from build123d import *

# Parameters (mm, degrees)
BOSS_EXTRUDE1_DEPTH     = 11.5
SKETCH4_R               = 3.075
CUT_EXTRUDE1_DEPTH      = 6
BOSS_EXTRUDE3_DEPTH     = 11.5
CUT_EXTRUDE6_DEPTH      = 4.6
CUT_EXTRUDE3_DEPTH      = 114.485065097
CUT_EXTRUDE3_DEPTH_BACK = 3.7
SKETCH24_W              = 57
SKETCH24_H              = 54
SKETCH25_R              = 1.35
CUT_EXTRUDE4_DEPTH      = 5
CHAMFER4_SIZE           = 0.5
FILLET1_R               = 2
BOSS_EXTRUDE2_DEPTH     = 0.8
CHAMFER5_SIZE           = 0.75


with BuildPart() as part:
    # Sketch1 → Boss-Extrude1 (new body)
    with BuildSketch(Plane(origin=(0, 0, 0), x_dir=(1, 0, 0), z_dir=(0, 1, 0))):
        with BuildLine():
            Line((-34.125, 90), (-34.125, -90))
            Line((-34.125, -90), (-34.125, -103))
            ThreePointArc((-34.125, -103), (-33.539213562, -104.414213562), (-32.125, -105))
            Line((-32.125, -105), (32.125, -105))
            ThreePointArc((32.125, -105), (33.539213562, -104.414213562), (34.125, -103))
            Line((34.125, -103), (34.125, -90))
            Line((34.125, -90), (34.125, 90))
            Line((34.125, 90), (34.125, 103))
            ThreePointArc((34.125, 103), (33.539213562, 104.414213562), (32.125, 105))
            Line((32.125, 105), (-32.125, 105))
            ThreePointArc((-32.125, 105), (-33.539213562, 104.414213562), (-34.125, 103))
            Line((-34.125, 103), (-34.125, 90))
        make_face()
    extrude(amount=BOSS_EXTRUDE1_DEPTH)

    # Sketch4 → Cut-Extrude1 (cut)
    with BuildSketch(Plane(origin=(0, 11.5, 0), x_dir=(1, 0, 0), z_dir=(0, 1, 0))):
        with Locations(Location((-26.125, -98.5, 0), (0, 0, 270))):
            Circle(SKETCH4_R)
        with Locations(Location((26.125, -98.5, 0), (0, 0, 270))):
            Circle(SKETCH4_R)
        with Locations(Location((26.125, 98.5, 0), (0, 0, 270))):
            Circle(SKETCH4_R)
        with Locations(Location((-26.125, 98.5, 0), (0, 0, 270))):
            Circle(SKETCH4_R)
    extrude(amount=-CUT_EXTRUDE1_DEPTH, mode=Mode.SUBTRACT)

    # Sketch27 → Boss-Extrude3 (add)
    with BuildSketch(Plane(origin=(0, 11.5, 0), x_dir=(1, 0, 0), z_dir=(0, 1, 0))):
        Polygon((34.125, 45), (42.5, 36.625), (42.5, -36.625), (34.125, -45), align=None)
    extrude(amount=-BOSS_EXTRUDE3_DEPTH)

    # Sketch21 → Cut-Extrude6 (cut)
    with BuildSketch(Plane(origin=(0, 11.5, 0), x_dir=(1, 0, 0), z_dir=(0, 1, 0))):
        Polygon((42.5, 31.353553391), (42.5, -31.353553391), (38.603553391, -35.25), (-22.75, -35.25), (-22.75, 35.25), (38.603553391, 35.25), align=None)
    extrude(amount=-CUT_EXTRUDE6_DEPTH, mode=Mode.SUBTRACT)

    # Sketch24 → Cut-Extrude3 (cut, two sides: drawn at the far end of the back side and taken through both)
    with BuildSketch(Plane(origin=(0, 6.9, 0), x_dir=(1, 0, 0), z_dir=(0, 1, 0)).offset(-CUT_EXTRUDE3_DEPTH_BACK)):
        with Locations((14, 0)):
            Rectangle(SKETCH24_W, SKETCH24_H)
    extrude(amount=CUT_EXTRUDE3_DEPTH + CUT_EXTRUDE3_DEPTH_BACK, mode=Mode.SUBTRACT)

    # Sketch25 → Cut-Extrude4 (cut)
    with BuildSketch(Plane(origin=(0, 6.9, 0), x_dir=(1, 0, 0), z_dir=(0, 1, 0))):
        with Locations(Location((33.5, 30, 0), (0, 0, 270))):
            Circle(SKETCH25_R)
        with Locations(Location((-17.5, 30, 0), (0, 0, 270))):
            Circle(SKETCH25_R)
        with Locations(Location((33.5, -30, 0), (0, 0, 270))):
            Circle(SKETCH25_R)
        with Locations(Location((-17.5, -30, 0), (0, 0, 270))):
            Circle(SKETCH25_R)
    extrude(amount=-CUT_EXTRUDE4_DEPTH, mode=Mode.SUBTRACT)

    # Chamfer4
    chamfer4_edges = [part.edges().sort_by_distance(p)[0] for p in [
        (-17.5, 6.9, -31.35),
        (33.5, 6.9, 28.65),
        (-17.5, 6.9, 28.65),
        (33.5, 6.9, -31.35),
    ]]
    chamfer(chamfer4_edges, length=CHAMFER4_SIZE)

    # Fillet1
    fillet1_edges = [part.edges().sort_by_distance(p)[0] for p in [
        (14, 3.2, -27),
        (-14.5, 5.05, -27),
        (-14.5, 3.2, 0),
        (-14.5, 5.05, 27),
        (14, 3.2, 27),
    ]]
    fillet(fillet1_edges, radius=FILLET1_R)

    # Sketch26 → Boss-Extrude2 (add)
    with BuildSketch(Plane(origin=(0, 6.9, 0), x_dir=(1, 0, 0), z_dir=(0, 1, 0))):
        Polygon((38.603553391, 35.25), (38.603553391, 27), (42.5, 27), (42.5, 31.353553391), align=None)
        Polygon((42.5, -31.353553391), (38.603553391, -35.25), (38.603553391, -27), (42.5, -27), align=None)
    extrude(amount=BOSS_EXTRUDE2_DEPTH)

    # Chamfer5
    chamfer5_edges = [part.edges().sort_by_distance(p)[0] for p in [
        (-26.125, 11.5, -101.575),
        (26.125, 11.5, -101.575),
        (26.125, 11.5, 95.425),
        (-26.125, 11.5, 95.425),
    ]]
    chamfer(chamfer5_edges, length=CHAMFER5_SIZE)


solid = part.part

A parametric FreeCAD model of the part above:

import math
import FreeCAD as App
import Part
import Sketcher
from FreeCAD import Vector


def edges_at(feature, points):
    """Names of the edges that pass closest to the given points."""
    edges = feature.Shape.Edges
    near = lambda p: min(range(len(edges)), key=lambda i: edges[i].distToShape(Part.Vertex(*p))[0])
    return sorted({f"Edge{near(p) + 1}" for p in points})

doc = App.newDocument("Part")
body = doc.addObject("PartDesign::Body", "Body")

sketch1 = doc.addObject("Sketcher::SketchObject", "Sketch")
body.addObject(sketch1)
sketch1.AttachmentSupport = (doc.XZ_Plane, [""])
sketch1.MapMode = "FlatFace"
sketch1.addGeometry([
    Part.ArcOfCircle(Part.Circle(Vector(-32.125, 103, 0), Vector(0, 0, 1), 2), math.radians(90), math.radians(180)),
    Part.LineSegment(Vector(-32.125, 105, 0), Vector(32.125, 105, 0)),
    Part.ArcOfCircle(Part.Circle(Vector(32.125, 103, 0), Vector(0, 0, 1), 2), math.radians(0), math.radians(90)),
    Part.LineSegment(Vector(34.125, 103, 0), Vector(34.125, -103, 0)),
    Part.ArcOfCircle(Part.Circle(Vector(32.125, -103, 0), Vector(0, 0, 1), 2), math.radians(-90), math.radians(0)),
    Part.LineSegment(Vector(32.125, -105, 0), Vector(-32.125, -105, 0)),
    Part.ArcOfCircle(Part.Circle(Vector(-32.125, -103, 0), Vector(0, 0, 1), 2), math.radians(-180), math.radians(-90)),
    Part.LineSegment(Vector(-34.125, -103, 0), Vector(-34.125, 103, 0)),
], False)
sketch1.addConstraint([
    Sketcher.Constraint("Tangent", 0, 1, 1, 1),
    Sketcher.Constraint("Tangent", 1, 2, 2, 2),
    Sketcher.Constraint("Tangent", 2, 1, 3, 1),
    Sketcher.Constraint("Tangent", 3, 2, 4, 2),
    Sketcher.Constraint("Tangent", 4, 1, 5, 1),
    Sketcher.Constraint("Tangent", 5, 2, 6, 2),
    Sketcher.Constraint("Tangent", 6, 1, 7, 1),
    Sketcher.Constraint("Tangent", 7, 2, 0, 2),
    Sketcher.Constraint("Horizontal", 1),
    Sketcher.Constraint("Vertical", 3),
    Sketcher.Constraint("Horizontal", 5),
    Sketcher.Constraint("Vertical", 7),
    Sketcher.Constraint("Equal", 0, 2),
    Sketcher.Constraint("Equal", 2, 4),
    Sketcher.Constraint("Equal", 4, 6),
    Sketcher.Constraint("Symmetric", 0, 3, 4, 3, -1, 1),
    Sketcher.Constraint("Radius", 0, 2.0),
    Sketcher.Constraint("DistanceY", 3, 2, 3, 1, 206.0),
    Sketcher.Constraint("DistanceX", 1, 1, 1, 2, 64.25),
])
pad1 = doc.addObject("PartDesign::Pad", "Pad")
body.addObject(pad1)
pad1.Profile = sketch1
pad1.Length = 11.5
pad1.Reversed = True

sketch2 = doc.addObject("Sketcher::SketchObject", "Sketch001")
body.addObject(sketch2)
sketch2.AttachmentSupport = (doc.XZ_Plane, [""])
sketch2.MapMode = "FlatFace"
sketch2.AttachmentOffset = App.Placement(Vector(0, 0, -11.5), App.Rotation())
sketch2.addGeometry([
    Part.Circle(Vector(-26.125, 98.5, 0), Vector(0, 0, 1), 3.075),
    Part.Circle(Vector(26.125, 98.5, 0), Vector(0, 0, 1), 3.075),
    Part.Circle(Vector(26.125, -98.5, 0), Vector(0, 0, 1), 3.075),
    Part.Circle(Vector(-26.125, -98.5, 0), Vector(0, 0, 1), 3.075),
], False)
sketch2.addConstraint([
    Sketcher.Constraint("Equal", 0, 1),
    Sketcher.Constraint("Equal", 1, 2),
    Sketcher.Constraint("Equal", 2, 3),
    Sketcher.Constraint("Symmetric", 0, 3, 2, 3, -1, 1),
    Sketcher.Constraint("Symmetric", 1, 3, 3, 3, -1, 1),
    Sketcher.Constraint("Symmetric", 0, 3, 1, 3, -2),
    Sketcher.Constraint("Diameter", 0, 6.15),
    Sketcher.Constraint("DistanceY", 2, 3, 1, 3, 197.0),
    Sketcher.Constraint("DistanceX", 0, 3, 1, 3, 52.25),
])
pocket1 = doc.addObject("PartDesign::Pocket", "Pocket")
body.addObject(pocket1)
pocket1.Profile = sketch2
pocket1.Length = 6
pocket1.Reversed = True

sketch3 = doc.addObject("Sketcher::SketchObject", "Sketch002")
body.addObject(sketch3)
sketch3.AttachmentSupport = (doc.XZ_Plane, [""])
sketch3.MapMode = "FlatFace"
sketch3.AttachmentOffset = App.Placement(Vector(0, 0, -11.5), App.Rotation())
sketch3.addGeometry([
    Part.LineSegment(Vector(42.5, -36.625, 0), Vector(34.125, -45, 0)),
    Part.LineSegment(Vector(34.125, -45, 0), Vector(34.125, 45, 0)),
    Part.LineSegment(Vector(34.125, 45, 0), Vector(42.5, 36.625, 0)),
    Part.LineSegment(Vector(42.5, 36.625, 0), Vector(42.5, -36.625, 0)),
], False)
sketch3.addConstraint([
    Sketcher.Constraint("Coincident", 0, 2, 1, 1),
    Sketcher.Constraint("Coincident", 1, 2, 2, 1),
    Sketcher.Constraint("Coincident", 2, 2, 3, 1),
    Sketcher.Constraint("Coincident", 3, 2, 0, 1),
    Sketcher.Constraint("Vertical", 1),
    Sketcher.Constraint("Vertical", 3),
    Sketcher.Constraint("Perpendicular", 0, 2),
    Sketcher.Constraint("Equal", 0, 2),
    Sketcher.Constraint("DistanceY", 1, 1, 1, 2, 90.0),
    Sketcher.Constraint("DistanceY", 0, 2, -1, 1, 45.0),
    Sketcher.Constraint("DistanceY", 3, 2, 3, 1, 73.25),
    Sketcher.Constraint("DistanceX", -1, 1, 2, 2, 42.5),
])
pad2 = doc.addObject("PartDesign::Pad", "Pad001")
body.addObject(pad2)
pad2.Profile = sketch3
pad2.Length = 11.5

sketch4 = doc.addObject("Sketcher::SketchObject", "Sketch003")
body.addObject(sketch4)
sketch4.AttachmentSupport = (doc.XZ_Plane, [""])
sketch4.MapMode = "FlatFace"
sketch4.AttachmentOffset = App.Placement(Vector(0, 0, -11.5), App.Rotation())
sketch4.addGeometry([
    Part.LineSegment(Vector(42.5, 31.353553, 0), Vector(42.5, -31.353553, 0)),
    Part.LineSegment(Vector(42.5, -31.353553, 0), Vector(38.603553, -35.25, 0)),
    Part.LineSegment(Vector(38.603553, -35.25, 0), Vector(-22.75, -35.25, 0)),
    Part.LineSegment(Vector(-22.75, -35.25, 0), Vector(-22.75, 35.25, 0)),
    Part.LineSegment(Vector(-22.75, 35.25, 0), Vector(38.603553, 35.25, 0)),
    Part.LineSegment(Vector(38.603553, 35.25, 0), Vector(42.5, 31.353553, 0)),
], False)
sketch4.addConstraint([
    Sketcher.Constraint("Coincident", 0, 2, 1, 1),
    Sketcher.Constraint("Coincident", 1, 2, 2, 1),
    Sketcher.Constraint("Coincident", 2, 2, 3, 1),
    Sketcher.Constraint("Coincident", 3, 2, 4, 1),
    Sketcher.Constraint("Coincident", 4, 2, 5, 1),
    Sketcher.Constraint("Coincident", 5, 2, 0, 1),
    Sketcher.Constraint("Vertical", 0),
    Sketcher.Constraint("Horizontal", 2),
    Sketcher.Constraint("Vertical", 3),
    Sketcher.Constraint("Horizontal", 4),
    Sketcher.Constraint("Symmetric", 1, 2, 4, 2, -1),
    Sketcher.Constraint("Perpendicular", 1, 5),
    Sketcher.Constraint("Equal", 1, 5),
    Sketcher.Constraint("DistanceY", 3, 1, 3, 2, 70.5),
    Sketcher.Constraint("DistanceX", -1, 1, 0, 2, 42.5),
    Sketcher.Constraint("DistanceX", 2, 2, -1, 1, 22.75),
    Sketcher.Constraint("DistanceX", 2, 2, 2, 1, 61.353553),
])
pocket2 = doc.addObject("PartDesign::Pocket", "Pocket001")
body.addObject(pocket2)
pocket2.Profile = sketch4
pocket2.Length = 4.6
pocket2.Reversed = True

sketch5 = doc.addObject("Sketcher::SketchObject", "Sketch004")
body.addObject(sketch5)
sketch5.AttachmentSupport = (doc.XZ_Plane, [""])
sketch5.MapMode = "FlatFace"
sketch5.AttachmentOffset = App.Placement(Vector(0, 0, -6.9), App.Rotation())
sketch5.addGeometry([
    Part.LineSegment(Vector(-14.5, -27, 0), Vector(-14.5, 27, 0)),
    Part.LineSegment(Vector(-14.5, 27, 0), Vector(42.5, 27, 0)),
    Part.LineSegment(Vector(42.5, 27, 0), Vector(42.5, -27, 0)),
    Part.LineSegment(Vector(42.5, -27, 0), Vector(-14.5, -27, 0)),
], False)
sketch5.addConstraint([
    Sketcher.Constraint("Coincident", 0, 2, 1, 1),
    Sketcher.Constraint("Coincident", 1, 2, 2, 1),
    Sketcher.Constraint("Coincident", 2, 2, 3, 1),
    Sketcher.Constraint("Coincident", 3, 2, 0, 1),
    Sketcher.Constraint("Vertical", 0),
    Sketcher.Constraint("Horizontal", 1),
    Sketcher.Constraint("Vertical", 2),
    Sketcher.Constraint("Horizontal", 3),
    Sketcher.Constraint("DistanceX", 1, 1, 1, 2, 57.0),
    Sketcher.Constraint("DistanceY", 0, 1, 0, 2, 54.0),
    Sketcher.Constraint("DistanceY", -1, 1, 0, 2, 27.0),
    Sketcher.Constraint("DistanceX", 0, 2, -1, 1, 14.5),
])
pocket3 = doc.addObject("PartDesign::Pocket", "Pocket002")
body.addObject(pocket3)
pocket3.Profile = sketch5
pocket3.Type = "TwoLengths"
pocket3.Length = 114.485065
pocket3.Length2 = 3.7

sketch6 = doc.addObject("Sketcher::SketchObject", "Sketch005")
body.addObject(sketch6)
sketch6.AttachmentSupport = (doc.XZ_Plane, [""])
sketch6.MapMode = "FlatFace"
sketch6.AttachmentOffset = App.Placement(Vector(0, 0, -6.9), App.Rotation())
sketch6.addGeometry([
    Part.Circle(Vector(33.5, -30, 0), Vector(0, 0, 1), 1.35),
    Part.Circle(Vector(-17.5, -30, 0), Vector(0, 0, 1), 1.35),
    Part.Circle(Vector(33.5, 30, 0), Vector(0, 0, 1), 1.35),
    Part.Circle(Vector(-17.5, 30, 0), Vector(0, 0, 1), 1.35),
], False)
sketch6.addConstraint([
    Sketcher.Constraint("Equal", 0, 1),
    Sketcher.Constraint("Equal", 1, 2),
    Sketcher.Constraint("Equal", 2, 3),
    Sketcher.Constraint("Symmetric", 0, 3, 2, 3, -1),
    Sketcher.Constraint("Symmetric", 1, 3, 3, 3, -1),
    Sketcher.Constraint("Horizontal", 0, 3, 1, 3),
    Sketcher.Constraint("Diameter", 0, 2.7),
    Sketcher.Constraint("DistanceY", 0, 3, -1, 1, 30.0),
    Sketcher.Constraint("DistanceX", 1, 3, 0, 3, 51.0),
    Sketcher.Constraint("DistanceX", -1, 1, 0, 3, 33.5),
])
pocket4 = doc.addObject("PartDesign::Pocket", "Pocket003")
body.addObject(pocket4)
pocket4.Profile = sketch6
pocket4.Length = 5
pocket4.Reversed = True
doc.recompute()

chamfer = doc.addObject("PartDesign::Chamfer", "Chamfer")
body.addObject(chamfer)
chamfer.Base = (pocket4, edges_at(pocket4, [
    (-17.5, 6.9, -31.35),
    (33.5, 6.9, 28.65),
    (-17.5, 6.9, 28.65),
    (33.5, 6.9, -31.35),
]))
chamfer.Size = 0.5
doc.recompute()

fillet = doc.addObject("PartDesign::Fillet", "Fillet")
body.addObject(fillet)
fillet.Base = (chamfer, edges_at(chamfer, [
    (14, 3.2, -27),
    (-14.5, 5.05, -27),
    (-14.5, 3.2, 0),
    (-14.5, 5.05, 27),
    (14, 3.2, 27),
]))
fillet.Radius = 2

sketch7 = doc.addObject("Sketcher::SketchObject", "Sketch006")
body.addObject(sketch7)
sketch7.AttachmentSupport = (doc.XZ_Plane, [""])
sketch7.MapMode = "FlatFace"
sketch7.AttachmentOffset = App.Placement(Vector(0, 0, -6.9), App.Rotation())
sketch7.addGeometry([
    Part.LineSegment(Vector(38.603553, -35.25, 0), Vector(38.603553, -27, 0)),
    Part.LineSegment(Vector(38.603553, -27, 0), Vector(42.5, -27, 0)),
    Part.LineSegment(Vector(42.5, -27, 0), Vector(42.5, -31.353553, 0)),
    Part.LineSegment(Vector(42.5, -31.353553, 0), Vector(38.603553, -35.25, 0)),
    Part.LineSegment(Vector(38.603553, 35.25, 0), Vector(42.5, 31.353553, 0)),
    Part.LineSegment(Vector(42.5, 31.353553, 0), Vector(42.5, 27, 0)),
    Part.LineSegment(Vector(42.5, 27, 0), Vector(38.603553, 27, 0)),
    Part.LineSegment(Vector(38.603553, 27, 0), Vector(38.603553, 35.25, 0)),
], False)
sketch7.addConstraint([
    Sketcher.Constraint("Coincident", 0, 2, 1, 1),
    Sketcher.Constraint("Coincident", 1, 2, 2, 1),
    Sketcher.Constraint("Coincident", 2, 2, 3, 1),
    Sketcher.Constraint("Coincident", 3, 2, 0, 1),
    Sketcher.Constraint("Coincident", 4, 2, 5, 1),
    Sketcher.Constraint("Coincident", 5, 2, 6, 1),
    Sketcher.Constraint("Coincident", 6, 2, 7, 1),
    Sketcher.Constraint("Coincident", 7, 2, 4, 1),
    Sketcher.Constraint("Vertical", 0),
    Sketcher.Constraint("Horizontal", 1),
    Sketcher.Constraint("Vertical", 2),
    Sketcher.Constraint("Vertical", 5),
    Sketcher.Constraint("Horizontal", 6),
    Sketcher.Constraint("Vertical", 7),
    Sketcher.Constraint("Symmetric", 2, 2, 4, 2, -1),
    Sketcher.Constraint("Symmetric", 0, 2, 6, 2, -1),
    Sketcher.Constraint("Perpendicular", 3, 4),
    Sketcher.Constraint("Equal", 0, 7),
    Sketcher.Constraint("DistanceY", 0, 2, -1, 1, 27.0),
    Sketcher.Constraint("DistanceY", 0, 1, 0, 2, 8.25),
    Sketcher.Constraint("DistanceX", -1, 1, 1, 2, 42.5),
    Sketcher.Constraint("DistanceX", 1, 1, 1, 2, 3.896447),
])
pad3 = doc.addObject("PartDesign::Pad", "Pad002")
body.addObject(pad3)
pad3.Profile = sketch7
pad3.Length = 0.8
pad3.Reversed = True
doc.recompute()

chamfer2 = doc.addObject("PartDesign::Chamfer", "Chamfer001")
body.addObject(chamfer2)
chamfer2.Base = (pad3, edges_at(pad3, [
    (-26.125, 11.5, -101.575),
    (26.125, 11.5, -101.575),
    (26.125, 11.5, 95.425),
    (-26.125, 11.5, 95.425),
]))
chamfer2.Size = 0.75

doc.recompute()
